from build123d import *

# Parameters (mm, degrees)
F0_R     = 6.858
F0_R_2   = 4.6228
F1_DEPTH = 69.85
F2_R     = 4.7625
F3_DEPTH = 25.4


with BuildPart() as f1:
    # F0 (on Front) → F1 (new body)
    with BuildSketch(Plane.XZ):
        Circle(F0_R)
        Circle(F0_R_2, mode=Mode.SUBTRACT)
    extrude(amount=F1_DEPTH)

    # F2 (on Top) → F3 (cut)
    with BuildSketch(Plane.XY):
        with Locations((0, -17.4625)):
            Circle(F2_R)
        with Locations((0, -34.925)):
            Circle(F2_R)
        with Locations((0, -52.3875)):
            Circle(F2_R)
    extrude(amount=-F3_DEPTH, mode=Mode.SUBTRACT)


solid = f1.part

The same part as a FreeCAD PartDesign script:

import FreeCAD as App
import Part
import Sketcher
Q = App.Units.Quantity

doc = App.newDocument("Part")
params = doc.addObject("Spreadsheet::Sheet", "Params")
for row, (alias, value) in enumerate([
    ("sketch1_diameter", "0.54 in"),
    ("sketch1_diameter2", "0.364 in"),
    ("pad1_length", "2.75 in"),
    ("sketch2_diameter", "0.375 in"),
    ("pocket1_length", "1 in"),
], start=1):
    params.set(f"A{row}", alias)
    params.set(f"B{row}", "=" + value)
    params.setAlias(f"B{row}", alias)

body = doc.addObject("PartDesign::Body", "Body")

# Sketch on XZ plane
sketch1 = body.newObject("Sketcher::SketchObject", "Sketch")
sketch1.AttachmentSupport = (doc.getObject("XZ_Plane"), [""])
sketch1.MapMode = "FlatFace"
sketch1.addGeometry([
    Part.Circle(App.Vector(0, 0, 0), App.Vector(0, 0, 1), 6.9),
    Part.Circle(App.Vector(0, 0, 0), App.Vector(0, 0, 1), 4.6),
], False)
sketch1.addConstraint([
    Sketcher.Constraint("Coincident", 0, 3, -1, 1),
    Sketcher.Constraint("Coincident", 1, 3, -1, 1),
    Sketcher.Constraint("Diameter", 0, Q("0.54 in")),
    Sketcher.Constraint("Diameter", 1, Q("0.364 in")),
])
sketch1.setExpression("Constraints[2]", "Params.sketch1_diameter")
sketch1.setExpression("Constraints[3]", "Params.sketch1_diameter2")
pad1 = body.newObject("PartDesign::Pad", "Pad")
pad1.Profile = sketch1
pad1.setExpression("Length", "Params.pad1_length")

# Sketch on XY plane
sketch2 = body.newObject("Sketcher::SketchObject", "Sketch001")
sketch2.AttachmentSupport = (doc.getObject("XY_Plane"), [""])
sketch2.MapMode = "FlatFace"
sketch2.addGeometry([
    Part.Circle(App.Vector(0, -17.5, 0), App.Vector(0, 0, 1), 4.8),
    Part.Circle(App.Vector(0, -34.9, 0), App.Vector(0, 0, 1), 4.8),
    Part.Circle(App.Vector(0, -52.4, 0), App.Vector(0, 0, 1), 4.8),
], False)
sketch2.addConstraint([
    Sketcher.Constraint("Equal", 0, 1),
    Sketcher.Constraint("Equal", 1, 2),
    Sketcher.Constraint("PointOnObject", 0, 3, -2),
    Sketcher.Constraint("PointOnObject", 1, 3, -2),
    Sketcher.Constraint("PointOnObject", 2, 3, -2),
    Sketcher.Constraint("Diameter", 0, Q("0.375 in")),
    Sketcher.Constraint("DistanceY", 0, 3, -1, 1, Q("0.6875 in")),
    Sketcher.Constraint("DistanceY", 1, 3, -1, 1, Q("1.375 in")),
    Sketcher.Constraint("DistanceY", 2, 3, -1, 1, Q("2.0625 in")),
])
sketch2.setExpression("Constraints[5]", "Params.sketch2_diameter")
pocket1 = body.newObject("PartDesign::Pocket", "Pocket")
pocket1.Profile = sketch2
pocket1.setExpression("Length", "Params.pocket1_length")

doc.recompute()
